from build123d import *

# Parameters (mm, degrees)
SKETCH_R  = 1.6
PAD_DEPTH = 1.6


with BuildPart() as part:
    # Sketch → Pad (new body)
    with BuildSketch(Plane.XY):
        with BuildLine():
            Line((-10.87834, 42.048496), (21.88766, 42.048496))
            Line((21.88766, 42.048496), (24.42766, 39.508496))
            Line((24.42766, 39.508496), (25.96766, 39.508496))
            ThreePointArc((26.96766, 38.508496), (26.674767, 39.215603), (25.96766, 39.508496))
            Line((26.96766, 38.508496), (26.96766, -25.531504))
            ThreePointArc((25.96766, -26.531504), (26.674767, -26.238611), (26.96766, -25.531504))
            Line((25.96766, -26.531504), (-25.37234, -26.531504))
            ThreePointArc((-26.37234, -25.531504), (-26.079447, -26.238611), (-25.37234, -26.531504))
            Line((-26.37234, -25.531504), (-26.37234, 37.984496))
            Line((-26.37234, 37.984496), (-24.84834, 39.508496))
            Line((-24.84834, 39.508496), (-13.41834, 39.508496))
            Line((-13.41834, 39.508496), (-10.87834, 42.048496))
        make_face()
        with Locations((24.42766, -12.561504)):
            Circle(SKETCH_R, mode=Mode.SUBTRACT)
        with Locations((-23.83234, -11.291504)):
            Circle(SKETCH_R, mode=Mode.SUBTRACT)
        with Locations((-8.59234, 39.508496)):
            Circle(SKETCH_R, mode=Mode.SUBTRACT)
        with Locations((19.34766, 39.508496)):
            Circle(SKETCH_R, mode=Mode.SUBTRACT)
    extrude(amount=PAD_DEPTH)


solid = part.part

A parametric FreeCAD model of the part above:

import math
import FreeCAD as App
import Part
import Sketcher

V = App.Vector
Q = App.Units.Quantity

doc = App.newDocument("Part")
body = doc.addObject("PartDesign::Body", "Body")

# Sketch on XY plane
sketch1 = body.newObject("Sketcher::SketchObject", "Sketch")
sketch1.AttachmentSupport = (doc.getObject("XY_Plane"), [""])
sketch1.MapMode = "FlatFace"
sketch1.addGeometry([
    Part.LineSegment(V(21.9, 42, 0), V(-10.9, 42, 0)),  # 0
    Part.LineSegment(V(-10.9, 42, 0), V(-13.4, 39.5, 0)),  # 1
    Part.LineSegment(V(-13.4, 39.5, 0), V(-24.8, 39.5, 0)),  # 2
    Part.LineSegment(V(-24.8, 39.5, 0), V(-26.4, 38, 0)),  # 3
    Part.LineSegment(V(-26.4, 38, 0), V(-26.4, -25.5, 0)),  # 4
    Part.ArcOfCircle(Part.Circle(V(-25.4, -25.5, 0), V(0, 0, 1), 1), math.radians(180), math.radians(270)),  # 5
    Part.LineSegment(V(-25.4, -26.5, 0), V(26, -26.5, 0)),  # 6
    Part.ArcOfCircle(Part.Circle(V(26, -25.5, 0), V(0, 0, 1), 1), math.radians(-90), math.radians(0)),  # 7
    Part.LineSegment(V(27, -25.5, 0), V(27, 38.5, 0)),  # 8
    Part.ArcOfCircle(Part.Circle(V(26, 38.5, 0), V(0, 0, 1), 1), math.radians(0), math.radians(90)),  # 9
    Part.LineSegment(V(26, 39.5, 0), V(24.4, 39.5, 0)),  # 10
    Part.LineSegment(V(24.4, 39.5, 0), V(21.9, 42, 0)),  # 11
    Part.Circle(V(24.4, -12.6, 0), V(0, 0, 1), 1.6),  # 12
    Part.Circle(V(-23.8, -11.3, 0), V(0, 0, 1), 1.6),  # 13
    Part.Circle(V(19.3, 39.5, 0), V(0, 0, 1), 1.6),  # 14
    Part.Circle(V(-8.6, 39.5, 0), V(0, 0, 1), 1.6),  # 15
], False)
sketch1.addConstraint([
    Sketcher.Constraint("Coincident", 0, 2, 1, 1),
    Sketcher.Constraint("Coincident", 1, 2, 2, 1),
    Sketcher.Constraint("Coincident", 2, 2, 3, 1),
    Sketcher.Constraint("Coincident", 3, 2, 4, 1),
    Sketcher.Constraint("Tangent", 4, 2, 5, 1),
    Sketcher.Constraint("Tangent", 5, 2, 6, 1),
    Sketcher.Constraint("Tangent", 6, 2, 7, 1),
    Sketcher.Constraint("Tangent", 7, 2, 8, 1),
    Sketcher.Constraint("Tangent", 8, 2, 9, 1),
    Sketcher.Constraint("Tangent", 9, 2, 10, 1),
    Sketcher.Constraint("Coincident", 10, 2, 11, 1),
    Sketcher.Constraint("Coincident", 11, 2, 0, 1),
    Sketcher.Constraint("Horizontal", 0),
    Sketcher.Constraint("Horizontal", 2),
    Sketcher.Constraint("Vertical", 4),
    Sketcher.Constraint("Horizontal", 6),
    Sketcher.Constraint("Vertical", 8),
    Sketcher.Constraint("Horizontal", 10),
    Sketcher.Constraint("Equal", 5, 7),
    Sketcher.Constraint("Equal", 7, 9),
    Sketcher.Constraint("Equal", 12, 13),
    Sketcher.Constraint("Equal", 13, 14),
    Sketcher.Constraint("Equal", 14, 15),
    Sketcher.Constraint("Parallel", 1, 3),
    Sketcher.Constraint("Perpendicular", 3, 11),
    Sketcher.Constraint("Horizontal", 14, 3, 15, 3),
    Sketcher.Constraint("Horizontal", 15, 3, 1, 2),
    Sketcher.Constraint("Horizontal", 2, 2, 9, 2),
    Sketcher.Constraint("Vertical", 12, 3, 10, 2),
    Sketcher.Constraint("Equal", 1, 11),
    Sketcher.Constraint("Radius", 5, Q("0.999999 mm")),
    Sketcher.Constraint("Diameter", 12, Q("3.2 mm")),
    Sketcher.Constraint("DistanceX", 2, 2, 2, 1, Q("11.43 mm")),
    Sketcher.Constraint("DistanceX", 6, 1, 6, 2, Q("51.34 mm")),
    Sketcher.Constraint("DistanceX", 10, 2, 10, 1, Q("1.54 mm")),
    Sketcher.Constraint("DistanceY", 8, 1, 8, 2, Q("64.04 mm")),
    Sketcher.Constraint("DistanceX", 13, 3, 7, 3, Q("49.800001 mm")),
    Sketcher.Constraint("DistanceY", 13, 3, 9, 3, Q("49.800001 mm")),
    Sketcher.Constraint("DistanceX", 0, 2, 0, 1, Q("32.766 mm")),
    Sketcher.Constraint("DistanceY", 4, 2, 4, 1, Q("63.516 mm")),
    Sketcher.Constraint("DistanceY", 7, 3, 12, 3, Q("12.970001 mm")),
    Sketcher.Constraint("DistanceX", 14, 3, 9, 3, Q("6.620001 mm")),
    Sketcher.Constraint("DistanceX", 15, 3, 14, 3, Q("27.94 mm")),
    Sketcher.Constraint("DistanceX", 5, 3, -1, 1, Q("25.372341 mm")),
    Sketcher.Constraint("DistanceY", 5, 3, -1, 1, Q("25.531505 mm")),
])
pad1 = body.newObject("PartDesign::Pad", "Pad")
pad1.Profile = sketch1
pad1.Length = 1.6

doc.recompute()
